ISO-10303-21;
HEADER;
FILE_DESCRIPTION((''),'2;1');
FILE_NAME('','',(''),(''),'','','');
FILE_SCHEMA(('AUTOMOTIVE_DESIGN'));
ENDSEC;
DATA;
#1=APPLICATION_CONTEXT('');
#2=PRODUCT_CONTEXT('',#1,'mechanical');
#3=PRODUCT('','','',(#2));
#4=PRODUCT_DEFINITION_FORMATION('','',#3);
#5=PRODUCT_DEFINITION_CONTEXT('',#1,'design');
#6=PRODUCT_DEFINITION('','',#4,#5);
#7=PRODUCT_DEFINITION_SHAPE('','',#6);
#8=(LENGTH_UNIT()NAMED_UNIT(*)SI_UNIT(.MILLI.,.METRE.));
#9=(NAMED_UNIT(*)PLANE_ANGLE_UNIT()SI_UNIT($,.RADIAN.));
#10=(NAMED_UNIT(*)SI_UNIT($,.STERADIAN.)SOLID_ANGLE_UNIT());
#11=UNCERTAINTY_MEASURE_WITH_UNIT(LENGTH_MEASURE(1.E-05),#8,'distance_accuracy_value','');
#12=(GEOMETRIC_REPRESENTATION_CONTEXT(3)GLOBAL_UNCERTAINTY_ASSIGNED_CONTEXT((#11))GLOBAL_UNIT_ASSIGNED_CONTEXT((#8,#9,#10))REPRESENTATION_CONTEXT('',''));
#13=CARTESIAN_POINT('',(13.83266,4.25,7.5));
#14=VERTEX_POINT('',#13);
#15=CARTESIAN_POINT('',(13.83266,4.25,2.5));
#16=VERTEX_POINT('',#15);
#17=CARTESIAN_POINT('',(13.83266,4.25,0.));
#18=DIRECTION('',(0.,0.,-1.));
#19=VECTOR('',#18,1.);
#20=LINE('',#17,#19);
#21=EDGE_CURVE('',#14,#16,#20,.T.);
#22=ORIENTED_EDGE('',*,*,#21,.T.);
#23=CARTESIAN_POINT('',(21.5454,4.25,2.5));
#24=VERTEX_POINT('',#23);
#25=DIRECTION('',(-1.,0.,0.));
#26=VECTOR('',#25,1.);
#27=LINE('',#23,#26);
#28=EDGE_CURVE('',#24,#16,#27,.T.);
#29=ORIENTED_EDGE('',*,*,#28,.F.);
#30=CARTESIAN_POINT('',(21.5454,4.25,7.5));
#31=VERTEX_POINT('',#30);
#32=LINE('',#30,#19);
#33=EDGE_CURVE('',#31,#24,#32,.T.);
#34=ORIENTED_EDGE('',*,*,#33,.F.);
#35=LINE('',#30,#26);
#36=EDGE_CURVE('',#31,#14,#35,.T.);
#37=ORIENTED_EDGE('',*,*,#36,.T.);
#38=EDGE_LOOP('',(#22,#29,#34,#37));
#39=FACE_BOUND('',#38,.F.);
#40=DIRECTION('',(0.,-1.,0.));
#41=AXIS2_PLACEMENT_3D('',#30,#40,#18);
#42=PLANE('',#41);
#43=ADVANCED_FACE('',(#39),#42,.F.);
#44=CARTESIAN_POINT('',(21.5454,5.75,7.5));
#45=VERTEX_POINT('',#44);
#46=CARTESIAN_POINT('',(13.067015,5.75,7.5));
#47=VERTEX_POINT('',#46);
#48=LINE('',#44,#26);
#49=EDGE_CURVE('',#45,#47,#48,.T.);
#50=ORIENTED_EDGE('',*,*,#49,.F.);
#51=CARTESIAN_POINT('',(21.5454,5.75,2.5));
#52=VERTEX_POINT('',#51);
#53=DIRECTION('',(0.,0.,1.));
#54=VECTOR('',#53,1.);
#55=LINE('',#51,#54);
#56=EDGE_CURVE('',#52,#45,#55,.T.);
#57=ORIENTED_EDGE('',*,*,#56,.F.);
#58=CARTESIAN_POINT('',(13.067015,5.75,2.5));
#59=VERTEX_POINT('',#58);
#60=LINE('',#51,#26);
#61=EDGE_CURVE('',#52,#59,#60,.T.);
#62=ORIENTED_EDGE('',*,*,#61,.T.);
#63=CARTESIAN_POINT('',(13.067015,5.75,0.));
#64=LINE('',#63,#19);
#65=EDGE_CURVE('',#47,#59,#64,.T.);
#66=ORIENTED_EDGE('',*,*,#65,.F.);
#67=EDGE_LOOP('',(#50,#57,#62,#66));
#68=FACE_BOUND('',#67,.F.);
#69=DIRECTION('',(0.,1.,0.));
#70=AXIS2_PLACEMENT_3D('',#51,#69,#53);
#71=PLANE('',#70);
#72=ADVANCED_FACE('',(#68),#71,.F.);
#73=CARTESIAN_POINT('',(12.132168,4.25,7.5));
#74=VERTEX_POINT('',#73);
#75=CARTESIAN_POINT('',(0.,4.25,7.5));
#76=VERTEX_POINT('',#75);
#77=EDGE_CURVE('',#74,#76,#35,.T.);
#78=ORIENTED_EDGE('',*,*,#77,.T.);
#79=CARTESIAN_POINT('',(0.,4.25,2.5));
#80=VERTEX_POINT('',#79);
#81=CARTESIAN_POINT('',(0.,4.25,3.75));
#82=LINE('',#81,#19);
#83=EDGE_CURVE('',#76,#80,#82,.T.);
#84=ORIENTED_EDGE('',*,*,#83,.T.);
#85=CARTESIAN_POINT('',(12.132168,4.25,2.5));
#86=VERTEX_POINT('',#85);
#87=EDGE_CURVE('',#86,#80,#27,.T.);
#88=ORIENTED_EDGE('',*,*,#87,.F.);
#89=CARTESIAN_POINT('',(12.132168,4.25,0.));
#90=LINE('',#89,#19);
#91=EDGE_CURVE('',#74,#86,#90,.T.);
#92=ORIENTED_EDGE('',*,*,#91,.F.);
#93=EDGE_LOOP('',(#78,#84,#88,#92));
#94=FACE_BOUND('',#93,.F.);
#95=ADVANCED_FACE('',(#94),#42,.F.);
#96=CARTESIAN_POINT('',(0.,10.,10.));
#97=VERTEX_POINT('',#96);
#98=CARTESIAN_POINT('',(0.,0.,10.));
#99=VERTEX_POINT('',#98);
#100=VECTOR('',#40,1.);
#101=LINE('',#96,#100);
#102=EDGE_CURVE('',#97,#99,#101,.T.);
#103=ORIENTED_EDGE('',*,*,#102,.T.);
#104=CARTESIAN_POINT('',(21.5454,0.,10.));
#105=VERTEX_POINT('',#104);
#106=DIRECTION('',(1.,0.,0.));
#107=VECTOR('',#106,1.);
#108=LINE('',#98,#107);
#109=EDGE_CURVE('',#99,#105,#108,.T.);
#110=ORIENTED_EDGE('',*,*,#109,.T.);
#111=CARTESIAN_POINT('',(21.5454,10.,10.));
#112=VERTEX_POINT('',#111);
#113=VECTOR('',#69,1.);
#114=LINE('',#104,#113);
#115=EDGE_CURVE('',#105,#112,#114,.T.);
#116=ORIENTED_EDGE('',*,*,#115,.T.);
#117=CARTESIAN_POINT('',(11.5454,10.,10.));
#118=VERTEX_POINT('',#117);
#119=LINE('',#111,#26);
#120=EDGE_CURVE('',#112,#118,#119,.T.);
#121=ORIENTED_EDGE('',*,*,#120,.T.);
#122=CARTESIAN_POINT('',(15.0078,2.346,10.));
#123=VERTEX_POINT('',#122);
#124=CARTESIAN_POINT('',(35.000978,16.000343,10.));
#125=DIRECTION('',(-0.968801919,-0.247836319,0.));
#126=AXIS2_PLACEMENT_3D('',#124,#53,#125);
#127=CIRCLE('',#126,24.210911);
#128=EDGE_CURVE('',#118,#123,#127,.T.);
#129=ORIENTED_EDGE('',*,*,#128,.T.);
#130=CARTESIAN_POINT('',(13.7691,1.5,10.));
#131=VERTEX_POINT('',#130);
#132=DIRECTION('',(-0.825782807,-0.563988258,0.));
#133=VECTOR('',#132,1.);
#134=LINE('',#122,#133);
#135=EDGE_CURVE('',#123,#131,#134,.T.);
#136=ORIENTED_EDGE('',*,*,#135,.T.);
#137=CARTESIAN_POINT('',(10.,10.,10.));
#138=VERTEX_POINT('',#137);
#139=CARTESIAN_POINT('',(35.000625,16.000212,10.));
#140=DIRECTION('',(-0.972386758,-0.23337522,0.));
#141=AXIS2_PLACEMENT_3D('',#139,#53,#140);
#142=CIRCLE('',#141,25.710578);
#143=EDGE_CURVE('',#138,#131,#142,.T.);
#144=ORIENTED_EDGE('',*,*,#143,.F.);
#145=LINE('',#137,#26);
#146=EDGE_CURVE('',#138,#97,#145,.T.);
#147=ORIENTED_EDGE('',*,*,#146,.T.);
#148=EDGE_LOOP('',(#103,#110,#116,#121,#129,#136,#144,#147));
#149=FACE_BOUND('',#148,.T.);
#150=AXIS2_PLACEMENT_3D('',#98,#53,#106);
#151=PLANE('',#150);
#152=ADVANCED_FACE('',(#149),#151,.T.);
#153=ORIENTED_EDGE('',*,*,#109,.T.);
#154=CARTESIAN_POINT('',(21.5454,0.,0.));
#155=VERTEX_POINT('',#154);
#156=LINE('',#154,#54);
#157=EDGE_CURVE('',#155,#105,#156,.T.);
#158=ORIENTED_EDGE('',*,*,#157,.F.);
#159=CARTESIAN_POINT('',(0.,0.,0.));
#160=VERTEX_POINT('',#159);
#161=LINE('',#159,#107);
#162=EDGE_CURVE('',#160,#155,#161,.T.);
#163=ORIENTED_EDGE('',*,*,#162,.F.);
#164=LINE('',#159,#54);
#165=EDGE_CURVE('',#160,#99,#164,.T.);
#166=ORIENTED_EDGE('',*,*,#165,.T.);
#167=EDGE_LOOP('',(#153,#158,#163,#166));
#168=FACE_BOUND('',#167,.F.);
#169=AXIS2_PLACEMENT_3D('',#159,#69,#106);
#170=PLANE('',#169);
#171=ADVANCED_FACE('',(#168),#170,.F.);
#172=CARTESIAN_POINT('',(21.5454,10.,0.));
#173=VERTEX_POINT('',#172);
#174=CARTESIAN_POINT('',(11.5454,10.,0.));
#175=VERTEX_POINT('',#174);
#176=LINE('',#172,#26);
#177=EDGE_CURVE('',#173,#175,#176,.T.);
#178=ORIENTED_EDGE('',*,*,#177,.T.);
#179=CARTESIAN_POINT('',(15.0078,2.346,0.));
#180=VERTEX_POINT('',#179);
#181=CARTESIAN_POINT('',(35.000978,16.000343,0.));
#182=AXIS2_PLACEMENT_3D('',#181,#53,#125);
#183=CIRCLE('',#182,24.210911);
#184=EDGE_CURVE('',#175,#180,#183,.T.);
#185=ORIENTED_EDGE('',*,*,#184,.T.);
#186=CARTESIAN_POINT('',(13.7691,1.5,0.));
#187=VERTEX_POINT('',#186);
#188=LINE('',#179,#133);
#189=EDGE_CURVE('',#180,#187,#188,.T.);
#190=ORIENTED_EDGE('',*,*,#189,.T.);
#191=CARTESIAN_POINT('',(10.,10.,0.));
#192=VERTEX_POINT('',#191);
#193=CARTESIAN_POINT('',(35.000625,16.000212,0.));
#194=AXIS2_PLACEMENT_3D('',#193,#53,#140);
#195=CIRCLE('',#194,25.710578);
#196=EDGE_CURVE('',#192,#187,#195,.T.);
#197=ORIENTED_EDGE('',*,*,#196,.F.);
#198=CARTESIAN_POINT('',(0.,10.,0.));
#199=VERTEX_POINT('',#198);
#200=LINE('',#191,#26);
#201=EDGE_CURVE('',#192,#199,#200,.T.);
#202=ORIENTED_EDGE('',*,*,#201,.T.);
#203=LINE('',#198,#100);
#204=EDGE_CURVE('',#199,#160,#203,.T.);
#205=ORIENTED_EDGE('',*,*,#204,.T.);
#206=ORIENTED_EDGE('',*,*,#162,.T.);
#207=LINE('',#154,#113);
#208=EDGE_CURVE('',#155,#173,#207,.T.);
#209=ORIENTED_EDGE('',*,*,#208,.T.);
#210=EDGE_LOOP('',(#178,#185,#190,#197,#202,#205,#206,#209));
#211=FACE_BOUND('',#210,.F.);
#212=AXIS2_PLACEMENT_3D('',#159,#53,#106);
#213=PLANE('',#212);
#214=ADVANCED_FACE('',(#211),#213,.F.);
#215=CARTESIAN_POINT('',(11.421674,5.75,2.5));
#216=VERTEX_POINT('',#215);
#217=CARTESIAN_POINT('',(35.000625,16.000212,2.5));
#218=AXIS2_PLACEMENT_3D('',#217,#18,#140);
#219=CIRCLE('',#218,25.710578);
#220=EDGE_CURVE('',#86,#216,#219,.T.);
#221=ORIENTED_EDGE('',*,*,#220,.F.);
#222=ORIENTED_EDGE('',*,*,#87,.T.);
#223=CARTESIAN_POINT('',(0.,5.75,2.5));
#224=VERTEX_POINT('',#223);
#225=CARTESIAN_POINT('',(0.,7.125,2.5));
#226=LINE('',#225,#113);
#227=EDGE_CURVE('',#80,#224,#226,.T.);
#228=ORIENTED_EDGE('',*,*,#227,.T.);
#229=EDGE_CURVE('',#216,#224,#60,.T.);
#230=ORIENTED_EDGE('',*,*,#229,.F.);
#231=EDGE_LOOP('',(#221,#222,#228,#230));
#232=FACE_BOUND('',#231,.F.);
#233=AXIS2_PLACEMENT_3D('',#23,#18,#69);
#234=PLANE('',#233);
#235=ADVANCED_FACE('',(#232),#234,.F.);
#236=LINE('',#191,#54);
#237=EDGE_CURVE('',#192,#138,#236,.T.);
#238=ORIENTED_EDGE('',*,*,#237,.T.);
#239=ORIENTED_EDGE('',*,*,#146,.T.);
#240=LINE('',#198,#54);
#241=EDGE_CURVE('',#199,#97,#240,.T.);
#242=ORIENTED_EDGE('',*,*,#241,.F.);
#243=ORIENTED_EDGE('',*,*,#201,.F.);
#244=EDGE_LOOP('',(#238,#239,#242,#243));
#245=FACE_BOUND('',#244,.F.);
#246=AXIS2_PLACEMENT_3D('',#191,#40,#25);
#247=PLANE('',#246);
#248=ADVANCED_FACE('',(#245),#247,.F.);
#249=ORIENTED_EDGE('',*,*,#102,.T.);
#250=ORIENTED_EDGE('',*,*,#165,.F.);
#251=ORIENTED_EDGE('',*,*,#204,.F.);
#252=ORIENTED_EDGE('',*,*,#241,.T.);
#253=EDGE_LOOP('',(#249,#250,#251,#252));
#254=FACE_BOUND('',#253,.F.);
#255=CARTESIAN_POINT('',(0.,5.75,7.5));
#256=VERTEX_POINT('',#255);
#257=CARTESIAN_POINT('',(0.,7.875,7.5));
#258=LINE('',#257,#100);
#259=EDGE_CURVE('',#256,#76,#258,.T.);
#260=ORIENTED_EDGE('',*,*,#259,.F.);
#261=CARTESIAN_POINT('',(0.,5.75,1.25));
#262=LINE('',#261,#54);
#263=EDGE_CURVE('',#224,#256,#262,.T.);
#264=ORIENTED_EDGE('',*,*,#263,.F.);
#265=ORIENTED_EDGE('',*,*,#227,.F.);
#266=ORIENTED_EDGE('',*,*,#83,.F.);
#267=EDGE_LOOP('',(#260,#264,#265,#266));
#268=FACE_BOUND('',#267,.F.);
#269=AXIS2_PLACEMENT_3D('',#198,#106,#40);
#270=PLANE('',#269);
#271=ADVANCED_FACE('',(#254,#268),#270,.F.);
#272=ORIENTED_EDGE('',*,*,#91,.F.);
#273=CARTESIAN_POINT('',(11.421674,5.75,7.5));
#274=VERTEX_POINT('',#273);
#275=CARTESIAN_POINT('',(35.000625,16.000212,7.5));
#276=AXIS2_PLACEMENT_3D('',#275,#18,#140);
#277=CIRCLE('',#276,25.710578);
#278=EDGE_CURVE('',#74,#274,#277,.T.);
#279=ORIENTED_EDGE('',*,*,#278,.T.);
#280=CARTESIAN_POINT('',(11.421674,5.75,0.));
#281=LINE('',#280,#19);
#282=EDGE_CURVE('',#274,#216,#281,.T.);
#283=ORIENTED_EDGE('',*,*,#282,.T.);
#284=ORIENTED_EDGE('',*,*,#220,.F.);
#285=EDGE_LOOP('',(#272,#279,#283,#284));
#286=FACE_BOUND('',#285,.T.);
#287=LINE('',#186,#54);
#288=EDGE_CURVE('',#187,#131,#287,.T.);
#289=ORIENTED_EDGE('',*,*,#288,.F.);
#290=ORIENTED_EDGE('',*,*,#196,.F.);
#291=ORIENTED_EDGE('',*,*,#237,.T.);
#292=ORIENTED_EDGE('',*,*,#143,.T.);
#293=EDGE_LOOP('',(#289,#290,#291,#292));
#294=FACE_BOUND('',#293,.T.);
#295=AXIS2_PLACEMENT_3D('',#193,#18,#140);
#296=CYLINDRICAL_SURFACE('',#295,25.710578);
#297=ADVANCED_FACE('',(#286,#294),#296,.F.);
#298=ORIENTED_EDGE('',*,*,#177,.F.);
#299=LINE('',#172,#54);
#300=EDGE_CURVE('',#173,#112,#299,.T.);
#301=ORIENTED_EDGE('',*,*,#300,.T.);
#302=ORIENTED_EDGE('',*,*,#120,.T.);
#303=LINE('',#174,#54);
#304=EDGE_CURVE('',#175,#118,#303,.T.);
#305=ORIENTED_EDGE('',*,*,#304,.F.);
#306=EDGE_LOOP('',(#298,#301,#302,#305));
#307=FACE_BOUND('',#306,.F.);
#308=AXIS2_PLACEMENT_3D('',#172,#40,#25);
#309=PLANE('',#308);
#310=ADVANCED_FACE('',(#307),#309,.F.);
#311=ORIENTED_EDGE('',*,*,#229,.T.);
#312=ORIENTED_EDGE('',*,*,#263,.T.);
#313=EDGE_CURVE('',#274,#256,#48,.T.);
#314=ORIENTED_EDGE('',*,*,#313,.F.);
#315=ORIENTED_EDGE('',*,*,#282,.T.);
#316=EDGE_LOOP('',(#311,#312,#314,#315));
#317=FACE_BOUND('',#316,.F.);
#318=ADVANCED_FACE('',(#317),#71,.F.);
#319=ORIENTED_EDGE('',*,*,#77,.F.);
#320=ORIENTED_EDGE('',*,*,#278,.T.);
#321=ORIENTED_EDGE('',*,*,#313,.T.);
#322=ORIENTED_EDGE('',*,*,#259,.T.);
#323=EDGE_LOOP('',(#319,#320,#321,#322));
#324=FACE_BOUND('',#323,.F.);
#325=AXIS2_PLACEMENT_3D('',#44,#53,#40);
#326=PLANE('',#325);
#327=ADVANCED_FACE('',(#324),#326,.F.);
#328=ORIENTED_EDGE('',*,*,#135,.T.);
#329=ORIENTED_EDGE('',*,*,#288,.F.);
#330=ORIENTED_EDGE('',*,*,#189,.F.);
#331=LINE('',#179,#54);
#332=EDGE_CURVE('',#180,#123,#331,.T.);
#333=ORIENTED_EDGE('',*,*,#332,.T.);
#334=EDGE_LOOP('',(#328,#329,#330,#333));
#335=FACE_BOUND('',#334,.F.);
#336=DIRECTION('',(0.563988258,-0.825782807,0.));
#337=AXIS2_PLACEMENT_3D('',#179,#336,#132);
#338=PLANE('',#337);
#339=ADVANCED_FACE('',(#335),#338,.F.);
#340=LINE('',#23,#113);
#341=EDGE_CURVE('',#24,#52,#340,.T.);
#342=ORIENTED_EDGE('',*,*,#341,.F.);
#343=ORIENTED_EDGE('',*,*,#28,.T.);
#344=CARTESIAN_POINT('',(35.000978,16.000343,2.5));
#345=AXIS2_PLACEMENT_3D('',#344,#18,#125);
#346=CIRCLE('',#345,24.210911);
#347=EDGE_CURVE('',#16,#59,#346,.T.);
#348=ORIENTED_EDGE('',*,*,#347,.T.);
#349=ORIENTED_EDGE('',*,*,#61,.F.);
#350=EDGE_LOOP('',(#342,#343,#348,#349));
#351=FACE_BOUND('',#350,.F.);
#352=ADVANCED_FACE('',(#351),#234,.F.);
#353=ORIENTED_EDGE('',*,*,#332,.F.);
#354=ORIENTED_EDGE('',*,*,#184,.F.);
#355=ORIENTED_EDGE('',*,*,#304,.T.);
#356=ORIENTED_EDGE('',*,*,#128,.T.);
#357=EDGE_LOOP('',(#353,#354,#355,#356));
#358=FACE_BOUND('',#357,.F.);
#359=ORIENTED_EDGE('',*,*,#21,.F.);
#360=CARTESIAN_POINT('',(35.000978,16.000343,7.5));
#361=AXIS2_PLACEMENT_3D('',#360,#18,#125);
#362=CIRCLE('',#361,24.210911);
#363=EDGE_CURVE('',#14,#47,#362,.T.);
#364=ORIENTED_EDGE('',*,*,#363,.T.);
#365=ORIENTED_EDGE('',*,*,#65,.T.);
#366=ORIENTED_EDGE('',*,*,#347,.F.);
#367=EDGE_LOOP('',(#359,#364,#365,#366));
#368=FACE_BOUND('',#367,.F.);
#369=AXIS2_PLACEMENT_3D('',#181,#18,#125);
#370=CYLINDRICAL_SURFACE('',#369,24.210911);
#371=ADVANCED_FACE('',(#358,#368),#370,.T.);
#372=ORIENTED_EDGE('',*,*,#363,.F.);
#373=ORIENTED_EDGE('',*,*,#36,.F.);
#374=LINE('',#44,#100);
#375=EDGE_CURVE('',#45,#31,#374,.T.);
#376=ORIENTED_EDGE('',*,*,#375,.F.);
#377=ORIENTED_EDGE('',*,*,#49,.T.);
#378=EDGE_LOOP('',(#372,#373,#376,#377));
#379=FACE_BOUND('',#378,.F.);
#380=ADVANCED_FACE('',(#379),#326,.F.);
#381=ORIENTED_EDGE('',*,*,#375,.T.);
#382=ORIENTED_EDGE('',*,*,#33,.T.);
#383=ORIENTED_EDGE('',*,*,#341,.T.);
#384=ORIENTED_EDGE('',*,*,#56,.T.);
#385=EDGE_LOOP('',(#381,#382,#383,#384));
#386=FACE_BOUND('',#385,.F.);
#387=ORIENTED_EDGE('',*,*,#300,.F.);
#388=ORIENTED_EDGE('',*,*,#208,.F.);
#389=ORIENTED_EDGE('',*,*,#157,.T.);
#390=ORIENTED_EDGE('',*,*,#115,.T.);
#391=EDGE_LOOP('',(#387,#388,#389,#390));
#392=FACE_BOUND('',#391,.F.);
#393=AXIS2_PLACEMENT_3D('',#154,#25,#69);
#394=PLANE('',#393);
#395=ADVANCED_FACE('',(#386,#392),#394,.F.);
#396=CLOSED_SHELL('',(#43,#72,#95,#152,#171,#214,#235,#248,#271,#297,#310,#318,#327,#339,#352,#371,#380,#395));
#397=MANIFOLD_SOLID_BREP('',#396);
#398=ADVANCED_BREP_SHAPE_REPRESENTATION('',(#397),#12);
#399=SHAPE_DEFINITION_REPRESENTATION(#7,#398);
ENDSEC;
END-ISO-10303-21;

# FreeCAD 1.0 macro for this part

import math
import FreeCAD as App
import Part
import Sketcher
from FreeCAD import Vector
Q = App.Units.Quantity


def add_polygon(sketch, points):
    """Adds a closed chain of lines whose ends are joined by coincident constraints."""
    first, n = sketch.GeometryCount, len(points)
    for a, b in zip(points, points[1:] + points[:1]):
        sketch.addGeometry(Part.LineSegment(App.Vector(*a, 0), App.Vector(*b, 0)), False)
    for i in range(n):
        sketch.addConstraint(Sketcher.Constraint("Coincident", first + i, 2, first + (i + 1) % n, 1))

doc = App.newDocument("Part")
body = doc.addObject("PartDesign::Body", "Body")

# Sketch on XY plane
sketch1 = body.newObject("Sketcher::SketchObject", "Sketch")
sketch1.AttachmentSupport = (doc.getObject("XY_Plane"), [""])
sketch1.MapMode = "FlatFace"
sketch1.addGeometry([
    Part.LineSegment(Vector(0, 10, 0), Vector(0, 0, 0)),  # 0
    Part.LineSegment(Vector(0, 0, 0), Vector(21.5, 0, 0)),  # 1
    Part.LineSegment(Vector(21.5, 0, 0), Vector(21.5, 10, 0)),  # 2
    Part.LineSegment(Vector(21.5, 10, 0), Vector(11.5, 10, 0)),  # 3
    Part.ArcOfCircle(Part.Circle(Vector(35, 16, 0), Vector(0, 0, 1), 24.2), math.radians(-165.65), math.radians(-145.67)),  # 4
    Part.LineSegment(Vector(15, 2.3, 0), Vector(13.8, 1.5, 0)),  # 5
    Part.ArcOfCircle(Part.Circle(Vector(35, 16, 0), Vector(0, 0, 1), 25.7), math.radians(-167), math.radians(-146)),  # 6
    Part.LineSegment(Vector(10, 10, 0), Vector(0, 10, 0)),  # 7
], False)
sketch1.addConstraint([
    Sketcher.Constraint("Coincident", 0, 2, 1, 1),
    Sketcher.Constraint("Coincident", 1, 2, 2, 1),
    Sketcher.Constraint("Coincident", 2, 2, 3, 1),
    Sketcher.Constraint("Coincident", 3, 2, 4, 1),
    Sketcher.Constraint("Coincident", 4, 2, 5, 1),
    Sketcher.Constraint("Coincident", 5, 2, 6, 2),
    Sketcher.Constraint("Coincident", 6, 1, 7, 1),
    Sketcher.Constraint("Coincident", 7, 2, 0, 1),
    Sketcher.Constraint("Vertical", 0),
    Sketcher.Constraint("Horizontal", 1),
    Sketcher.Constraint("Vertical", 2),
    Sketcher.Constraint("Horizontal", 3),
    Sketcher.Constraint("Horizontal", 7),
    Sketcher.Constraint("Coincident", 0, 2, -1, 1),
    Sketcher.Constraint("Horizontal", 3, 2, 6, 1),
    Sketcher.Constraint("Equal", 3, 7),
    Sketcher.Constraint("Equal", 7, 0),
    Sketcher.Constraint("DistanceX", 3, 2, 3, 1, Q("10 mm")),
    Sketcher.Constraint("DistanceX", -1, 1, 6, 3, Q("35 mm")),
    Sketcher.Constraint("DistanceY", -1, 1, 6, 3, Q("16 mm")),
    Sketcher.Constraint("Distance", 5, Q("1.5 mm")),
    Sketcher.Constraint("DistanceY", -1, 1, 5, 2, Q("1.5 mm")),
    Sketcher.Constraint("Radius", 4, Q("24.211 mm")),
    Sketcher.Constraint("DistanceY", -1, 1, 4, 3, Q("16.0003 mm")),
    Sketcher.Constraint("DistanceY", -1, 1, 4, 2, Q("2.346 mm")),
])
pad1 = body.newObject("PartDesign::Pad", "Pad")
pad1.Profile = sketch1
pad1.Length = 10

# Sketch on YZ plane
sketch2 = body.newObject("Sketcher::SketchObject", "Sketch001")
sketch2.AttachmentSupport = (doc.getObject("YZ_Plane"), [""])
sketch2.MapMode = "FlatFace"
sketch2.AttachmentOffset = App.Placement(Vector(0, 0, 21.5454), App.Rotation())
add_polygon(sketch2, [(5.8, 7.5), (4.2, 7.5), (4.2, 2.5), (5.8, 2.5)])  # lines 0-3
sketch2.addConstraint([
    Sketcher.Constraint("Horizontal", 0),
    Sketcher.Constraint("Vertical", 1),
    Sketcher.Constraint("Horizontal", 2),
    Sketcher.Constraint("Vertical", 3),
    Sketcher.Constraint("DistanceY", 1, 2, 1, 1, Q("5 mm")),
    Sketcher.Constraint("DistanceX", 0, 2, 0, 1, Q("1.5 mm")),
    Sketcher.Constraint("DistanceY", -1, 1, 0, 2, Q("7.5 mm")),
    Sketcher.Constraint("DistanceX", -1, 1, 0, 2, Q("4.25 mm")),
])
pocket1 = body.newObject("PartDesign::Pocket", "Pocket")
pocket1.Profile = sketch2
pocket1.Type = "ThroughAll"

doc.recompute()
